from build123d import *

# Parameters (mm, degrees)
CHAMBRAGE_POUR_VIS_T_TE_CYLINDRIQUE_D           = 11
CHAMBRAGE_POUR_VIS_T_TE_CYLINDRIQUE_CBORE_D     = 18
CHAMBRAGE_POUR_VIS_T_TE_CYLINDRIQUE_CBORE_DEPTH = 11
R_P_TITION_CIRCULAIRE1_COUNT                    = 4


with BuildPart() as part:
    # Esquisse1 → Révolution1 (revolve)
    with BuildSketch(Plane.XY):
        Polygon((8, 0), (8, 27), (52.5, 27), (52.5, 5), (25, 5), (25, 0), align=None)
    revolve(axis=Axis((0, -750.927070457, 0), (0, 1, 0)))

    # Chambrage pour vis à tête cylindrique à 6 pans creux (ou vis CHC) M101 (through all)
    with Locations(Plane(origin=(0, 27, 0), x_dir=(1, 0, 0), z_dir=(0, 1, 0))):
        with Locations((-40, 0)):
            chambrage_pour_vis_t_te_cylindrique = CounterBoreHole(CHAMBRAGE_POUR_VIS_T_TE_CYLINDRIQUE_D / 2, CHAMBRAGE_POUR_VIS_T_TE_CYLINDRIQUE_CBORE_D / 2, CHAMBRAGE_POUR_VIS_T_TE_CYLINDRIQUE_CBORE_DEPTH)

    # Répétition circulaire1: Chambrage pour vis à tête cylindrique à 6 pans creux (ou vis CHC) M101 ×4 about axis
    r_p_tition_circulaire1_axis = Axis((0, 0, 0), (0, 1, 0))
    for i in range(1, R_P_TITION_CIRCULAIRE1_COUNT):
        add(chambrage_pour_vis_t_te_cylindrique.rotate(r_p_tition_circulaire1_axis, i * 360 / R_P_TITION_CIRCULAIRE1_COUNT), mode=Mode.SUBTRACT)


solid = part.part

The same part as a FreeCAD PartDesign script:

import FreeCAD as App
import Part
import Sketcher

V = App.Vector
Q = App.Units.Quantity

doc = App.newDocument("Part")
body = doc.addObject("PartDesign::Body", "Body")

# Sketch on XY plane
sketch1 = body.newObject("Sketcher::SketchObject", "Sketch")
sketch1.AttachmentSupport = (doc.getObject("XY_Plane"), [""])
sketch1.MapMode = "FlatFace"
sketch1.addGeometry([
    Part.LineSegment(V(8, 27, 0), V(8, 0, 0)),  # 0
    Part.LineSegment(V(8, 0, 0), V(25, 0, 0)),  # 1
    Part.LineSegment(V(25, 0, 0), V(25, 5, 0)),  # 2
    Part.LineSegment(V(25, 5, 0), V(52.5, 5, 0)),  # 3
    Part.LineSegment(V(52.5, 5, 0), V(52.5, 27, 0)),  # 4
    Part.LineSegment(V(52.5, 27, 0), V(8, 27, 0)),  # 5
], False)
sketch1.addConstraint([
    Sketcher.Constraint("Coincident", 0, 2, 1, 1),
    Sketcher.Constraint("Coincident", 1, 2, 2, 1),
    Sketcher.Constraint("Coincident", 2, 2, 3, 1),
    Sketcher.Constraint("Coincident", 3, 2, 4, 1),
    Sketcher.Constraint("Coincident", 4, 2, 5, 1),
    Sketcher.Constraint("Coincident", 5, 2, 0, 1),
    Sketcher.Constraint("Vertical", 0),
    Sketcher.Constraint("Horizontal", 1),
    Sketcher.Constraint("Vertical", 2),
    Sketcher.Constraint("Horizontal", 3),
    Sketcher.Constraint("Vertical", 4),
    Sketcher.Constraint("Horizontal", 5),
    Sketcher.Constraint("PointOnObject", 0, 2, -1),
    Sketcher.Constraint("DistanceX", 1, 1, 1, 2, Q("17 mm")),
    Sketcher.Constraint("DistanceY", 0, 2, 0, 1, Q("27 mm")),
    Sketcher.Constraint("DistanceY", 2, 1, 2, 2, Q("5 mm")),
    Sketcher.Constraint("DistanceX", 3, 1, 3, 2, Q("27.5 mm")),
    Sketcher.Constraint("DistanceX", -1, 1, 0, 2, Q("8 mm")),
])
revolution = body.newObject("PartDesign::Revolution", "Revolution")
revolution.Profile = sketch1
revolution.ReferenceAxis = (sketch1, ["V_Axis"])
revolution.Angle = 360

# Sketch on XZ plane
sketch2 = body.newObject("Sketcher::SketchObject", "Sketch001")
sketch2.AttachmentSupport = (doc.getObject("XZ_Plane"), [""])
sketch2.MapMode = "FlatFace"
sketch2.AttachmentOffset = App.Placement(V(0, 0, -27), App.Rotation())
sketch2.addGeometry(Part.Circle(V(-40, 0, 0), V(0, 0, 1), 5.5), False)
sketch2.addConstraint([
    Sketcher.Constraint("PointOnObject", 0, 3, -1),
    Sketcher.Constraint("Diameter", 0, Q("11 mm")),
    Sketcher.Constraint("DistanceX", 0, 3, -1, 1, Q("40 mm")),
])
doc.recompute()
hole = body.newObject("PartDesign::Hole", "Hole")
hole.Profile = sketch2
hole.ThreadType = "None"
hole.Diameter = 11
hole.DepthType = "ThroughAll"
hole.HoleCutType = "Counterbore"
hole.HoleCutDiameter = 18
hole.HoleCutDepth = 11
hole.Reversed = True
doc.recompute()

polarpattern = body.newObject("PartDesign::PolarPattern", "PolarPattern")
polarpattern.Originals = [hole]
polarpattern.Axis = (doc.getObject("Y_Axis"), [""])
polarpattern.Angle = 360
polarpattern.Occurrences = 4
body.Tip = polarpattern

doc.recompute()
